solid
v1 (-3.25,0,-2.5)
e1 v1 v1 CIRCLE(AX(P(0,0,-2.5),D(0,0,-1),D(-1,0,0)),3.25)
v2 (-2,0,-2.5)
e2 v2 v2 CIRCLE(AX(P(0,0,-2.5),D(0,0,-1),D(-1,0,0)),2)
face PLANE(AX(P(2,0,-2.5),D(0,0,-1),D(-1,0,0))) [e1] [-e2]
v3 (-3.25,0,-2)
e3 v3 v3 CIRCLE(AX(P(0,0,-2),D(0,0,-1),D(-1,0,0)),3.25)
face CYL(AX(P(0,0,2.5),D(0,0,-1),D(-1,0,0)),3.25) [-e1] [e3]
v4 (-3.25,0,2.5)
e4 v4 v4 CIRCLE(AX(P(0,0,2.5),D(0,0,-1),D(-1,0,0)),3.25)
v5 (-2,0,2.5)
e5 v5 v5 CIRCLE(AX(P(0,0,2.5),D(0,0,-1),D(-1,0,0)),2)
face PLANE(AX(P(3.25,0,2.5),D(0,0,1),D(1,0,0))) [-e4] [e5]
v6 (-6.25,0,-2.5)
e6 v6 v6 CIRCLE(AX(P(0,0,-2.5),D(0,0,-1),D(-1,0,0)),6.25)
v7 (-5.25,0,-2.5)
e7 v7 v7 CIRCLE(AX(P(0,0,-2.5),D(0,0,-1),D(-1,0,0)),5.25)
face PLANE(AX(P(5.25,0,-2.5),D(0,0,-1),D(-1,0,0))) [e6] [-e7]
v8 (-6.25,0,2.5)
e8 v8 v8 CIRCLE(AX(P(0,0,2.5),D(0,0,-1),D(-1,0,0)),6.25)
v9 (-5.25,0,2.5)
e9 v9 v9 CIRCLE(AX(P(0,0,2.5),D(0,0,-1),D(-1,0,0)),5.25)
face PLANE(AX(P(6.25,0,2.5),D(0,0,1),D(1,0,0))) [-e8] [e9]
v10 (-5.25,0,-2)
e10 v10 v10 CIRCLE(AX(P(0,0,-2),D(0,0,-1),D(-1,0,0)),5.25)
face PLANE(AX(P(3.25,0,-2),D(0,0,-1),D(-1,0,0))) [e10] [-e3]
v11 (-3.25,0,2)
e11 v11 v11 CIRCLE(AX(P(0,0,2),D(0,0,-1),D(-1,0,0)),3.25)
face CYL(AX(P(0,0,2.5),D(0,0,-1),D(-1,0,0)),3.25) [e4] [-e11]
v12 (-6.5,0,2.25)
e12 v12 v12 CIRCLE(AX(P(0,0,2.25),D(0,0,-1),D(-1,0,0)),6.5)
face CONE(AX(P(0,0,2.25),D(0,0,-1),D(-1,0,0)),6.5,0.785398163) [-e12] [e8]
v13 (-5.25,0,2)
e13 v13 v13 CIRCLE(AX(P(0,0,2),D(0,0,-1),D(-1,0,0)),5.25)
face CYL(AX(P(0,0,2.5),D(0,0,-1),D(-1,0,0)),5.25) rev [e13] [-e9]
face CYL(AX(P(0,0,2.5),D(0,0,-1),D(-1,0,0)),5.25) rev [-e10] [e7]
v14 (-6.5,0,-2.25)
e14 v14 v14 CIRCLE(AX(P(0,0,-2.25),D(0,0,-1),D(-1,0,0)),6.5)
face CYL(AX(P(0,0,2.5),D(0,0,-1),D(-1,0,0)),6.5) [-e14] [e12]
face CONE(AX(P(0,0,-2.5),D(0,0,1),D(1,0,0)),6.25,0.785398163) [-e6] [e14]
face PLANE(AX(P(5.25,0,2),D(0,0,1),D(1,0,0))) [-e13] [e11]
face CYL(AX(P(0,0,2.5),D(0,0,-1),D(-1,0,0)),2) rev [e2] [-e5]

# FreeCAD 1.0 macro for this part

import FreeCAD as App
import Part
import Sketcher

doc = App.newDocument("Part")
params = doc.addObject("Spreadsheet::Sheet", "Params")
for row, (alias, value) in enumerate([
    ("sketch1_width", "1 mm"),
    ("sketch1_width2", "2 mm"),
    ("sketch1_height", "5 mm"),
    ("sketch1_height2", "0.5 mm"),
    ("sketch1_height3", "4.5 mm"),
    ("revolution_angle", "360 deg"),
], start=1):
    params.set(f"A{row}", alias)
    params.set(f"B{row}", "=" + value)
    params.setAlias(f"B{row}", alias)

body = doc.addObject("PartDesign::Body", "Body")

sketch1 = body.newObject("Sketcher::SketchObject", "Sketch")
sketch1.AttachmentSupport = (doc.getObject("XZ_Plane"), [""])
sketch1.MapMode = "FlatFace"
sketch1.addGeometry([
    Part.LineSegment(App.Vector(6.5, 2.25, 0), App.Vector(6.25, 2.5, 0)),
    Part.LineSegment(App.Vector(6.25, 2.5, 0), App.Vector(5.25, 2.5, 0)),
    Part.LineSegment(App.Vector(5.25, 2.5, 0), App.Vector(5.25, 2, 0)),
    Part.LineSegment(App.Vector(5.25, 2, 0), App.Vector(3.25, 2, 0)),
    Part.LineSegment(App.Vector(3.25, 2, 0), App.Vector(3.25, 2.5, 0)),
    Part.LineSegment(App.Vector(3.25, 2.5, 0), App.Vector(2, 2.5, 0)),
    Part.LineSegment(App.Vector(2, 2.5, 0), App.Vector(2, -2.5, 0)),
    Part.LineSegment(App.Vector(2, -2.5, 0), App.Vector(3.25, -2.5, 0)),
    Part.LineSegment(App.Vector(3.25, -2.5, 0), App.Vector(3.25, -2, 0)),
    Part.LineSegment(App.Vector(3.25, -2, 0), App.Vector(5.25, -2, 0)),
    Part.LineSegment(App.Vector(5.25, -2, 0), App.Vector(5.25, -2.5, 0)),
    Part.LineSegment(App.Vector(5.25, -2.5, 0), App.Vector(6.25, -2.5, 0)),
    Part.LineSegment(App.Vector(6.25, -2.5, 0), App.Vector(6.5, -2.25, 0)),
    Part.LineSegment(App.Vector(6.5, -2.25, 0), App.Vector(6.5, 2.25, 0)),
], False)
sketch1.addConstraint([
    Sketcher.Constraint("Coincident", 0, 2, 1, 1),
    Sketcher.Constraint("Coincident", 1, 2, 2, 1),
    Sketcher.Constraint("Coincident", 2, 2, 3, 1),
    Sketcher.Constraint("Coincident", 3, 2, 4, 1),
    Sketcher.Constraint("Coincident", 4, 2, 5, 1),
    Sketcher.Constraint("Coincident", 5, 2, 6, 1),
    Sketcher.Constraint("Coincident", 6, 2, 7, 1),
    Sketcher.Constraint("Coincident", 7, 2, 8, 1),
    Sketcher.Constraint("Coincident", 8, 2, 9, 1),
    Sketcher.Constraint("Coincident", 9, 2, 10, 1),
    Sketcher.Constraint("Coincident", 10, 2, 11, 1),
    Sketcher.Constraint("Coincident", 11, 2, 12, 1),
    Sketcher.Constraint("Coincident", 12, 2, 13, 1),
    Sketcher.Constraint("Coincident", 13, 2, 0, 1),
    Sketcher.Constraint("Horizontal", 1),
    Sketcher.Constraint("Vertical", 2),
    Sketcher.Constraint("Horizontal", 3),
    Sketcher.Constraint("Vertical", 4),
    Sketcher.Constraint("Horizontal", 5),
    Sketcher.Constraint("Vertical", 6),
    Sketcher.Constraint("Horizontal", 7),
    Sketcher.Constraint("Vertical", 8),
    Sketcher.Constraint("Horizontal", 9),
    Sketcher.Constraint("Vertical", 10),
    Sketcher.Constraint("Horizontal", 11),
    Sketcher.Constraint("Vertical", 13),
    Sketcher.Constraint("Symmetric", 4, 2, 7, 2, -1),
    Sketcher.Constraint("Symmetric", 2, 2, 9, 2, -1),
    Sketcher.Constraint("Symmetric", 0, 2, 11, 2, -1),
    Sketcher.Constraint("Perpendicular", 0, 12),
    Sketcher.Constraint("Horizontal", 1, 2, 4, 2),
    Sketcher.Constraint("Equal", 0, 12),
    Sketcher.Constraint("DistanceX", 1, 2, 1, 1, 1.0),
    Sketcher.Constraint("DistanceX", 3, 2, 3, 1, 2.0),
    Sketcher.Constraint("DistanceY", 6, 2, 6, 1, 5.0),
    Sketcher.Constraint("DistanceY", 2, 2, 2, 1, 0.5),
    Sketcher.Constraint("DistanceY", 13, 1, 13, 2, 4.5),
    Sketcher.Constraint("DistanceX", -1, 1, 5, 2, 2.0),
    Sketcher.Constraint("DistanceX", 5, 2, 5, 1, 1.25),
])
sketch1.setExpression("Constraints[32]", "Params.sketch1_width")
sketch1.setExpression("Constraints[33]", "Params.sketch1_width2")
sketch1.setExpression("Constraints[34]", "Params.sketch1_height")
sketch1.setExpression("Constraints[35]", "Params.sketch1_height2")
sketch1.setExpression("Constraints[36]", "Params.sketch1_height3")
revolution = body.newObject("PartDesign::Revolution", "Revolution")
revolution.Profile = sketch1
revolution.ReferenceAxis = (sketch1, ["V_Axis"])
revolution.setExpression("Angle", "Params.revolution_angle")

doc.recompute()
